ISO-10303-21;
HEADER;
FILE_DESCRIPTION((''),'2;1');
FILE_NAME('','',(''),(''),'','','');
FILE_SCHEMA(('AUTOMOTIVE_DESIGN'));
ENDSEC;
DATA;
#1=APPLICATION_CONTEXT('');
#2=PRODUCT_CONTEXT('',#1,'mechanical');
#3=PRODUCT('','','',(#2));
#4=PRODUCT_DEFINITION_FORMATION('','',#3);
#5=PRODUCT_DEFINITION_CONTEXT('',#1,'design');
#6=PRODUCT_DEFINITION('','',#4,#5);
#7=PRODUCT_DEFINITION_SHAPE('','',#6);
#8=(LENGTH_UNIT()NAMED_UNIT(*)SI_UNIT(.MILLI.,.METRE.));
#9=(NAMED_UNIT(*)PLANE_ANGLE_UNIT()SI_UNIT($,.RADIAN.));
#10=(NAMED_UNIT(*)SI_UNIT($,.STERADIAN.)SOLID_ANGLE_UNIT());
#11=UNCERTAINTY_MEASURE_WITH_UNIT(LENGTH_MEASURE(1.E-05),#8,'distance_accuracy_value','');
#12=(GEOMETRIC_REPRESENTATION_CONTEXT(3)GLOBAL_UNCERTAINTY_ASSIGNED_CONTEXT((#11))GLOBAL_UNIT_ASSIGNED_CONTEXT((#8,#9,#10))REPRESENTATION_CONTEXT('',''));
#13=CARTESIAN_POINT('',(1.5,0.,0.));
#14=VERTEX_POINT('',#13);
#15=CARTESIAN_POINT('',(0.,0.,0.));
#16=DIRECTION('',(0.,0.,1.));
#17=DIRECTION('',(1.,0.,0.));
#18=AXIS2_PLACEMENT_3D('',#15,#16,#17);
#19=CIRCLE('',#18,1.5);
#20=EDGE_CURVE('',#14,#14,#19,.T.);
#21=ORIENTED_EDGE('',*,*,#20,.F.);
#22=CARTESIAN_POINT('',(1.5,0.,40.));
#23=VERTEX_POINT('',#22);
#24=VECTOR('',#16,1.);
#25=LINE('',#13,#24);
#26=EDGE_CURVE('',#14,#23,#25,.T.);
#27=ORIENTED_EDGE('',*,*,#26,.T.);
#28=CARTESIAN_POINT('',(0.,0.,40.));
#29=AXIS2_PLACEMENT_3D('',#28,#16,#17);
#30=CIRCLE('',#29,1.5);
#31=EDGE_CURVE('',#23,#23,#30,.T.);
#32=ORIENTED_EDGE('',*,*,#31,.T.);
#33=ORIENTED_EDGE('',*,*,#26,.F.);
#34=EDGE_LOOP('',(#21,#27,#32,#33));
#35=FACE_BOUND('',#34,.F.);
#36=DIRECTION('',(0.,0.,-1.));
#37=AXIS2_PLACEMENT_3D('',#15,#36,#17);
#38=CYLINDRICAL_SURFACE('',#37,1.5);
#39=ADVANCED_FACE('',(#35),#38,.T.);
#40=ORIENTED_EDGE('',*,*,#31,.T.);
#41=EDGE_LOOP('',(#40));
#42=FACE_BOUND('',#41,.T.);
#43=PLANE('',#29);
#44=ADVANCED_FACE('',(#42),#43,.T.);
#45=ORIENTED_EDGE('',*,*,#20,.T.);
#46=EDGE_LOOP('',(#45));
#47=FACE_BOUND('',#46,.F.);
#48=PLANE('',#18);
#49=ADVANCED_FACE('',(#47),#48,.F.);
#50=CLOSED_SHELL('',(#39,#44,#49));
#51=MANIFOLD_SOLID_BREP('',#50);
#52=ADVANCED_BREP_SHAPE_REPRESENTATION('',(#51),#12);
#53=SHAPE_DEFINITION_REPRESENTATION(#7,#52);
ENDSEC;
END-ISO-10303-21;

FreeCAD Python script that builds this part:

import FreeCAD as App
import Part
import Sketcher
from FreeCAD import Vector

doc = App.newDocument("Part")
body = doc.addObject("PartDesign::Body", "Body")

sketch1 = doc.addObject("Sketcher::SketchObject", "Sketch")
body.addObject(sketch1)
sketch1.AttachmentSupport = (doc.XY_Plane, [""])
sketch1.MapMode = "FlatFace"
sketch1.addGeometry(Part.Circle(Vector(0, 0, 0), Vector(0, 0, 1), 1.5), False)
sketch1.addConstraint([
    Sketcher.Constraint("Coincident", 0, 3, -1, 1),
    Sketcher.Constraint("Diameter", 0, 3.0),
])
pad1 = doc.addObject("PartDesign::Pad", "Pad")
body.addObject(pad1)
pad1.Profile = sketch1
pad1.Length = 40

doc.recompute()
